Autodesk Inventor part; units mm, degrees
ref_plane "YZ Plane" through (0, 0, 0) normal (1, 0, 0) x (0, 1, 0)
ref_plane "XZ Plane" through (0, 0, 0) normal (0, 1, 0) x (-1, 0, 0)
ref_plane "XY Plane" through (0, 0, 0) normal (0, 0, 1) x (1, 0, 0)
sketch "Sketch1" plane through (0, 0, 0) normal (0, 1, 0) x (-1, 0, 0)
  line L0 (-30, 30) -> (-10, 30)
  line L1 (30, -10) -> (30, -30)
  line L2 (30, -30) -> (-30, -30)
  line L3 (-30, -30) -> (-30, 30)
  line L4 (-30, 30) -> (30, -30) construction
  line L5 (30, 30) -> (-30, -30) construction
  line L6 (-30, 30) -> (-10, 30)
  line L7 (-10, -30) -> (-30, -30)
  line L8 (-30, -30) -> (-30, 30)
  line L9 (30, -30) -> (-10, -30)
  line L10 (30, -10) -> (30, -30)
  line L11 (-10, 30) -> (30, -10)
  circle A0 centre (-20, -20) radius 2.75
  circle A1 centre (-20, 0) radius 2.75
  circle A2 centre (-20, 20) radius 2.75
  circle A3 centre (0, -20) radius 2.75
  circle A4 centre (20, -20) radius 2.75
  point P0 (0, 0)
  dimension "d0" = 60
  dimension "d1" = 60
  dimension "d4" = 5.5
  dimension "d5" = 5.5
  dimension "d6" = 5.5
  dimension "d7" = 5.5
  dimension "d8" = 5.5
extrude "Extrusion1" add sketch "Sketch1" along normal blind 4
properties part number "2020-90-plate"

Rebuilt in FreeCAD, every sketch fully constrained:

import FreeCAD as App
import Part
import Sketcher
from FreeCAD import Vector

doc = App.newDocument("Part")
params = doc.addObject("Spreadsheet::Sheet", "Params")
for row, (alias, value) in enumerate([
    ("sketch1_diameter", "5.5 mm"),
    ("sketch1_width", "60 mm"),
    ("sketch1_width2", "20 mm"),
    ("pad1_length", "4 mm"),
], start=1):
    params.set(f"A{row}", alias)
    params.set(f"B{row}", "=" + value)
    params.setAlias(f"B{row}", alias)

body = doc.addObject("PartDesign::Body", "Body")

# Sketch on XZ plane
sketch1 = body.newObject("Sketcher::SketchObject", "Sketch")
sketch1.AttachmentSupport = (doc.getObject("XZ_Plane"), [""])
sketch1.MapMode = "FlatFace"
sketch1.addGeometry(Part.LineSegment(Vector(10, 30, 0), Vector(30, 30, 0)), False)
sketch1.addGeometry(Part.LineSegment(Vector(30, 30, 0), Vector(30, -30, 0)), False)
sketch1.addGeometry(Part.LineSegment(Vector(30, -30, 0), Vector(-30, -30, 0)), False)
sketch1.addGeometry(Part.LineSegment(Vector(-30, -30, 0), Vector(-30, -10, 0)), False)
sketch1.addGeometry(Part.LineSegment(Vector(-30, -10, 0), Vector(10, 30, 0)), False)
sketch1.addGeometry(Part.Circle(Vector(20, -20, 0), Vector(0, 0, 1), 2.8), False)
sketch1.addGeometry(Part.Circle(Vector(0, -20, 0), Vector(0, 0, 1), 2.8), False)
sketch1.addGeometry(Part.Circle(Vector(-20, -20, 0), Vector(0, 0, 1), 2.8), False)
sketch1.addGeometry(Part.Circle(Vector(20, 0, 0), Vector(0, 0, 1), 2.8), False)
sketch1.addGeometry(Part.Circle(Vector(20, 20, 0), Vector(0, 0, 1), 2.8), False)
sketch1.addConstraint(Sketcher.Constraint("Coincident", 0, 2, 1, 1))
sketch1.addConstraint(Sketcher.Constraint("Coincident", 1, 2, 2, 1))
sketch1.addConstraint(Sketcher.Constraint("Coincident", 2, 2, 3, 1))
sketch1.addConstraint(Sketcher.Constraint("Coincident", 3, 2, 4, 1))
sketch1.addConstraint(Sketcher.Constraint("Coincident", 4, 2, 0, 1))
sketch1.addConstraint(Sketcher.Constraint("Horizontal", 0))
sketch1.addConstraint(Sketcher.Constraint("Vertical", 1))
sketch1.addConstraint(Sketcher.Constraint("Horizontal", 2))
sketch1.addConstraint(Sketcher.Constraint("Vertical", 3))
sketch1.addConstraint(Sketcher.Constraint("Equal", 5, 6))
sketch1.addConstraint(Sketcher.Constraint("Equal", 6, 7))
sketch1.addConstraint(Sketcher.Constraint("Equal", 7, 8))
sketch1.addConstraint(Sketcher.Constraint("Equal", 8, 9))
sketch1.addConstraint(Sketcher.Constraint("Symmetric", 7, 3, 9, 3, -1, 1))
sketch1.addConstraint(Sketcher.Constraint("Symmetric", 0, 2, 2, 2, -1, 1))
sketch1.addConstraint(Sketcher.Constraint("Symmetric", 5, 3, 7, 3, -2))
sketch1.addConstraint(Sketcher.Constraint("PointOnObject", 6, 3, -2))
sketch1.addConstraint(Sketcher.Constraint("PointOnObject", 8, 3, -1))
sketch1.addConstraint(Sketcher.Constraint("Horizontal", 5, 3, 6, 3))
sketch1.addConstraint(Sketcher.Constraint("Vertical", 5, 3, 8, 3))
sketch1.addConstraint(Sketcher.Constraint("Equal", 2, 1))
sketch1.addConstraint(Sketcher.Constraint("Equal", 0, 3))
sketch1.addConstraint(Sketcher.Constraint("Diameter", 5, 5.5))
sketch1.addConstraint(Sketcher.Constraint("DistanceX", 2, 2, 2, 1, 60.0))
sketch1.addConstraint(Sketcher.Constraint("DistanceX", 0, 1, 0, 2, 20.0))
sketch1.addConstraint(Sketcher.Constraint("DistanceX", -1, 1, 5, 3, 20.0))
sketch1.addConstraint(Sketcher.Constraint("DistanceY", 5, 3, -1, 1, 20.0))
sketch1.setExpression("Constraints[22]", "Params.sketch1_diameter")
sketch1.setExpression("Constraints[23]", "Params.sketch1_width")
sketch1.setExpression("Constraints[24]", "Params.sketch1_width2")
pad1 = body.newObject("PartDesign::Pad", "Pad")
pad1.Profile = sketch1
pad1.setExpression("Length", "Params.pad1_length")
pad1.Reversed = True

doc.recompute()
